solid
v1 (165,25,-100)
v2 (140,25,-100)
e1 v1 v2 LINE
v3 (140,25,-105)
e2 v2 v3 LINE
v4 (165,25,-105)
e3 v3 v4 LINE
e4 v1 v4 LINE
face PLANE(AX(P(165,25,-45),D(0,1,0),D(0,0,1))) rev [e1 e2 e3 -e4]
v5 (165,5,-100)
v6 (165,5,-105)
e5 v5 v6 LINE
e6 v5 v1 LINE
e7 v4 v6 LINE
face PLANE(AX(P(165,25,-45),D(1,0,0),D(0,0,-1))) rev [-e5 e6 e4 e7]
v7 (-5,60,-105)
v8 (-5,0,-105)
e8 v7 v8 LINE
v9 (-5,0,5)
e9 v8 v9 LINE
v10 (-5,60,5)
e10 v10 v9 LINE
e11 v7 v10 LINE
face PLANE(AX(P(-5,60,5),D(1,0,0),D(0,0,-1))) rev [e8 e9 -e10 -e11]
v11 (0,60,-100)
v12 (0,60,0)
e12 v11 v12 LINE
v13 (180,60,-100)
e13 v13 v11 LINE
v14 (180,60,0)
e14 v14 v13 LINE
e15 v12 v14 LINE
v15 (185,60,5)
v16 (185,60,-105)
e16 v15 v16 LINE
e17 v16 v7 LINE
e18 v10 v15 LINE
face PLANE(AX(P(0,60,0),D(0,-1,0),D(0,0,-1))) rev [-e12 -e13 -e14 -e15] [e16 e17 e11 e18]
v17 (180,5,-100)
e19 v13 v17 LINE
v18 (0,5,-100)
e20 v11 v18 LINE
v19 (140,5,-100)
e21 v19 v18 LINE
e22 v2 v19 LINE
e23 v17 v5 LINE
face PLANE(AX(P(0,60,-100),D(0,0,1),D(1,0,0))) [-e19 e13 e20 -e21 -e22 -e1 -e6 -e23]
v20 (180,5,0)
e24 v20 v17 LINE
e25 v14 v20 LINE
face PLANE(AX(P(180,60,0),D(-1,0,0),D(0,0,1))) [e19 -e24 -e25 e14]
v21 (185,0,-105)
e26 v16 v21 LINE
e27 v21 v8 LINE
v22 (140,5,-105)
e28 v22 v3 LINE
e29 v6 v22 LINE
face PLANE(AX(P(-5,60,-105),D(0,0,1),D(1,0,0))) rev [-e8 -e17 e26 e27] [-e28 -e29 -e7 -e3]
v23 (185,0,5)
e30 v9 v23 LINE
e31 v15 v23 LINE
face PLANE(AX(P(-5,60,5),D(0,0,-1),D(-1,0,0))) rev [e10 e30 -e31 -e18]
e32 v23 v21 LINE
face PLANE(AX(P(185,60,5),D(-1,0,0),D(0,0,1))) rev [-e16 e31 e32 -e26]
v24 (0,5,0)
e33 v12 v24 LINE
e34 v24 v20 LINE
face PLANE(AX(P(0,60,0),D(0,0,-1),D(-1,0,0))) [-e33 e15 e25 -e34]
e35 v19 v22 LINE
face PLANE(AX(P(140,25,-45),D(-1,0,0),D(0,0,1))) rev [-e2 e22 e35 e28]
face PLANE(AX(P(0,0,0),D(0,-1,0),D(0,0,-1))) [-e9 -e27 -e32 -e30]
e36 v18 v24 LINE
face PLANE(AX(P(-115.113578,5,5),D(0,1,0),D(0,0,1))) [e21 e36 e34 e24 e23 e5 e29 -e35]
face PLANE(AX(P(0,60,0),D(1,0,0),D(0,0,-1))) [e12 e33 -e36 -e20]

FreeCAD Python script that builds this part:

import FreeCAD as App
import Part
import Sketcher

V = App.Vector


def add_polygon(sketch, points):
    """Adds a closed chain of lines whose ends are joined by coincident constraints."""
    first, n = sketch.GeometryCount, len(points)
    for a, b in zip(points, points[1:] + points[:1]):
        sketch.addGeometry(Part.LineSegment(App.Vector(*a, 0), App.Vector(*b, 0)), False)
    for i in range(n):
        sketch.addConstraint(Sketcher.Constraint("Coincident", first + i, 2, first + (i + 1) % n, 1))

doc = App.newDocument("Part")
body = doc.addObject("PartDesign::Body", "Body")

sketch1 = body.newObject("Sketcher::SketchObject", "Sketch")
sketch1.AttachmentSupport = (doc.getObject("XZ_Plane"), [""])
sketch1.MapMode = "FlatFace"
add_polygon(sketch1, [(-5, -105), (-5, 5), (185, 5), (185, -105)])
add_polygon(sketch1, [(180, 0), (0, 0), (0, -100), (180, -100)])
sketch1.addConstraint([
    Sketcher.Constraint("Vertical", 0),
    Sketcher.Constraint("Horizontal", 1),
    Sketcher.Constraint("Vertical", 2),
    Sketcher.Constraint("Horizontal", 3),
    Sketcher.Constraint("Horizontal", 4),
    Sketcher.Constraint("Vertical", 5),
    Sketcher.Constraint("Horizontal", 6),
    Sketcher.Constraint("Vertical", 7),
    Sketcher.Constraint("Coincident", 4, 2, -1, 1),
    Sketcher.Constraint("DistanceX", 1, 1, 1, 2, 190.0),
    Sketcher.Constraint("DistanceX", 4, 2, 4, 1, 180.0),
    Sketcher.Constraint("DistanceY", 0, 1, 0, 2, 110.0),
    Sketcher.Constraint("DistanceY", 5, 2, 5, 1, 100.0),
    Sketcher.Constraint("DistanceX", 0, 2, -1, 1, 5.0),
    Sketcher.Constraint("DistanceY", -1, 1, 0, 2, 5.0),
])
pad1 = body.newObject("PartDesign::Pad", "Pad")
pad1.Profile = sketch1
pad1.Length = 60
pad1.Reversed = True

sketch2 = body.newObject("Sketcher::SketchObject", "Sketch001")
sketch2.AttachmentSupport = (doc.getObject("YZ_Plane"), [""])
sketch2.MapMode = "FlatFace"
sketch2.AttachmentOffset = App.Placement(V(0, 0, 185), App.Rotation())
add_polygon(sketch2, [(5, 5), (0, 5), (0, -105), (5, -105)])
sketch2.addConstraint([
    Sketcher.Constraint("Horizontal", 0),
    Sketcher.Constraint("Vertical", 1),
    Sketcher.Constraint("Horizontal", 2),
    Sketcher.Constraint("Vertical", 3),
    Sketcher.Constraint("PointOnObject", 0, 2, -2),
    Sketcher.Constraint("DistanceX", 0, 2, 0, 1, 5.0),
    Sketcher.Constraint("DistanceY", 1, 2, 1, 1, 110.0),
    Sketcher.Constraint("DistanceY", -1, 1, 0, 2, 5.0),
])
pad2 = body.newObject("PartDesign::Pad", "Pad001")
pad2.Profile = sketch2
pad2.Length = 190
pad2.Reversed = True

sketch3 = body.newObject("Sketcher::SketchObject", "Sketch002")
sketch3.AttachmentSupport = (doc.getObject("XY_Plane"), [""])
sketch3.MapMode = "FlatFace"
sketch3.AttachmentOffset = App.Placement(V(0, 0, -105), App.Rotation())
add_polygon(sketch3, [(165, 25), (165, 5), (140, 5), (140, 25)])
sketch3.addConstraint([
    Sketcher.Constraint("Vertical", 0),
    Sketcher.Constraint("Horizontal", 1),
    Sketcher.Constraint("Vertical", 2),
    Sketcher.Constraint("Horizontal", 3),
    Sketcher.Constraint("DistanceX", 1, 2, 1, 1, 25.0),
    Sketcher.Constraint("DistanceY", 0, 2, 0, 1, 20.0),
    Sketcher.Constraint("DistanceX", -1, 1, 0, 2, 165.0),
    Sketcher.Constraint("DistanceY", -1, 1, 0, 2, 5.0),
])
pocket1 = body.newObject("PartDesign::Pocket", "Pocket")
pocket1.Profile = sketch3
pocket1.Length = 60
pocket1.Reversed = True

doc.recompute()
